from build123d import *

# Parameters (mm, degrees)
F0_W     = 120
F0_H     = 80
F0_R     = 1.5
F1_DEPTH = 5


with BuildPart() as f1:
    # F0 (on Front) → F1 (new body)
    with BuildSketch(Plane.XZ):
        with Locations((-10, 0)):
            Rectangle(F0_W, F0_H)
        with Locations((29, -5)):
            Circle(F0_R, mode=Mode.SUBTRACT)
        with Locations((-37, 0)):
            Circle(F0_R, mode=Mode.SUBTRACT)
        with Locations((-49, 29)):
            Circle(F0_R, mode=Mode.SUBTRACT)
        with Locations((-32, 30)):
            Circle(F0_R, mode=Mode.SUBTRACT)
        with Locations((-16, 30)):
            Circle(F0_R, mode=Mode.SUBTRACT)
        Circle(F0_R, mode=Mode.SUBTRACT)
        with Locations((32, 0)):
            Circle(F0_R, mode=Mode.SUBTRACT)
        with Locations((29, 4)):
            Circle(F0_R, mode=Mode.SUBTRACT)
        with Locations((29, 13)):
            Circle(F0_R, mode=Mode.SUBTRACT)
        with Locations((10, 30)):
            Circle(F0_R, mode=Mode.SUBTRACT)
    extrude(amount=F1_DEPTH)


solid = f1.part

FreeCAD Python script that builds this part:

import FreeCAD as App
import Part
import Sketcher
Q = App.Units.Quantity


def add_polygon(sketch, points):
    """Adds a closed chain of lines whose ends are joined by coincident constraints."""
    first, n = sketch.GeometryCount, len(points)
    for a, b in zip(points, points[1:] + points[:1]):
        sketch.addGeometry(Part.LineSegment(App.Vector(*a, 0), App.Vector(*b, 0)), False)
    for i in range(n):
        sketch.addConstraint(Sketcher.Constraint("Coincident", first + i, 2, first + (i + 1) % n, 1))

doc = App.newDocument("Part")
body = doc.addObject("PartDesign::Body", "Body")

sketch1 = body.newObject("Sketcher::SketchObject", "Sketch")
sketch1.AttachmentSupport = (doc.getObject("XZ_Plane"), [""])
sketch1.MapMode = "FlatFace"
add_polygon(sketch1, [(-70, 40), (-70, -40), (50, -40), (50, 40)])
sketch1.addGeometry(Part.Circle(App.Vector(-37, 0, 0), App.Vector(0, 0, 1), 1.5), False)
sketch1.addGeometry(Part.Circle(App.Vector(0, 0, 0), App.Vector(0, 0, 1), 1.5), False)
sketch1.addGeometry(Part.Circle(App.Vector(29, -5, 0), App.Vector(0, 0, 1), 1.5), False)
sketch1.addGeometry(Part.Circle(App.Vector(32, 0, 0), App.Vector(0, 0, 1), 1.5), False)
sketch1.addGeometry(Part.Circle(App.Vector(29, 4, 0), App.Vector(0, 0, 1), 1.5), False)
sketch1.addGeometry(Part.Circle(App.Vector(-49, 29, 0), App.Vector(0, 0, 1), 1.5), False)
sketch1.addGeometry(Part.Circle(App.Vector(-32, 30, 0), App.Vector(0, 0, 1), 1.5), False)
sketch1.addGeometry(Part.Circle(App.Vector(-16, 30, 0), App.Vector(0, 0, 1), 1.5), False)
sketch1.addGeometry(Part.Circle(App.Vector(29, 13, 0), App.Vector(0, 0, 1), 1.5), False)
sketch1.addGeometry(Part.Circle(App.Vector(10, 30, 0), App.Vector(0, 0, 1), 1.5), False)
sketch1.addConstraint(Sketcher.Constraint("Vertical", 0))
sketch1.addConstraint(Sketcher.Constraint("Horizontal", 1))
sketch1.addConstraint(Sketcher.Constraint("Vertical", 2))
sketch1.addConstraint(Sketcher.Constraint("Horizontal", 3))
sketch1.addConstraint(Sketcher.Constraint("Coincident", 5, 3, -1, 1))
sketch1.addConstraint(Sketcher.Constraint("Equal", 4, 5))
sketch1.addConstraint(Sketcher.Constraint("Equal", 5, 6))
sketch1.addConstraint(Sketcher.Constraint("Equal", 6, 7))
sketch1.addConstraint(Sketcher.Constraint("Equal", 7, 8))
sketch1.addConstraint(Sketcher.Constraint("Equal", 8, 9))
sketch1.addConstraint(Sketcher.Constraint("Equal", 9, 10))
sketch1.addConstraint(Sketcher.Constraint("Equal", 10, 11))
sketch1.addConstraint(Sketcher.Constraint("Equal", 11, 12))
sketch1.addConstraint(Sketcher.Constraint("Equal", 12, 13))
sketch1.addConstraint(Sketcher.Constraint("PointOnObject", 4, 3, -1))
sketch1.addConstraint(Sketcher.Constraint("PointOnObject", 7, 3, -1))
sketch1.addConstraint(Sketcher.Constraint("Horizontal", 10, 3, 11, 3))
sketch1.addConstraint(Sketcher.Constraint("Horizontal", 11, 3, 13, 3))
sketch1.addConstraint(Sketcher.Constraint("Vertical", 6, 3, 8, 3))
sketch1.addConstraint(Sketcher.Constraint("Vertical", 8, 3, 12, 3))
sketch1.addConstraint(Sketcher.Constraint("Diameter", 4, Q("3 mm")))
sketch1.addConstraint(Sketcher.Constraint("DistanceX", 1, 1, 1, 2, Q("120 mm")))
sketch1.addConstraint(Sketcher.Constraint("DistanceY", 0, 2, 0, 1, Q("80 mm")))
sketch1.addConstraint(Sketcher.Constraint("DistanceX", 4, 3, -1, 1, Q("37 mm")))
sketch1.addConstraint(Sketcher.Constraint("DistanceX", -1, 1, 6, 3, Q("29 mm")))
sketch1.addConstraint(Sketcher.Constraint("DistanceY", 6, 3, -1, 1, Q("5 mm")))
sketch1.addConstraint(Sketcher.Constraint("DistanceX", -1, 1, 7, 3, Q("32 mm")))
sketch1.addConstraint(Sketcher.Constraint("DistanceY", -1, 1, 8, 3, Q("4 mm")))
sketch1.addConstraint(Sketcher.Constraint("DistanceX", 9, 3, -1, 1, Q("49 mm")))
sketch1.addConstraint(Sketcher.Constraint("DistanceY", -1, 1, 9, 3, Q("29 mm")))
sketch1.addConstraint(Sketcher.Constraint("DistanceX", 10, 3, -1, 1, Q("32 mm")))
sketch1.addConstraint(Sketcher.Constraint("DistanceY", -1, 1, 10, 3, Q("30 mm")))
sketch1.addConstraint(Sketcher.Constraint("DistanceX", 11, 3, -1, 1, Q("16 mm")))
sketch1.addConstraint(Sketcher.Constraint("DistanceY", -1, 1, 12, 3, Q("13 mm")))
sketch1.addConstraint(Sketcher.Constraint("DistanceX", -1, 1, 13, 3, Q("10 mm")))
sketch1.addConstraint(Sketcher.Constraint("DistanceX", 0, 2, -1, 1, Q("70 mm")))
sketch1.addConstraint(Sketcher.Constraint("DistanceY", 0, 2, -1, 1, Q("40 mm")))
pad1 = body.newObject("PartDesign::Pad", "Pad")
pad1.Profile = sketch1
pad1.Length = 5

doc.recompute()
